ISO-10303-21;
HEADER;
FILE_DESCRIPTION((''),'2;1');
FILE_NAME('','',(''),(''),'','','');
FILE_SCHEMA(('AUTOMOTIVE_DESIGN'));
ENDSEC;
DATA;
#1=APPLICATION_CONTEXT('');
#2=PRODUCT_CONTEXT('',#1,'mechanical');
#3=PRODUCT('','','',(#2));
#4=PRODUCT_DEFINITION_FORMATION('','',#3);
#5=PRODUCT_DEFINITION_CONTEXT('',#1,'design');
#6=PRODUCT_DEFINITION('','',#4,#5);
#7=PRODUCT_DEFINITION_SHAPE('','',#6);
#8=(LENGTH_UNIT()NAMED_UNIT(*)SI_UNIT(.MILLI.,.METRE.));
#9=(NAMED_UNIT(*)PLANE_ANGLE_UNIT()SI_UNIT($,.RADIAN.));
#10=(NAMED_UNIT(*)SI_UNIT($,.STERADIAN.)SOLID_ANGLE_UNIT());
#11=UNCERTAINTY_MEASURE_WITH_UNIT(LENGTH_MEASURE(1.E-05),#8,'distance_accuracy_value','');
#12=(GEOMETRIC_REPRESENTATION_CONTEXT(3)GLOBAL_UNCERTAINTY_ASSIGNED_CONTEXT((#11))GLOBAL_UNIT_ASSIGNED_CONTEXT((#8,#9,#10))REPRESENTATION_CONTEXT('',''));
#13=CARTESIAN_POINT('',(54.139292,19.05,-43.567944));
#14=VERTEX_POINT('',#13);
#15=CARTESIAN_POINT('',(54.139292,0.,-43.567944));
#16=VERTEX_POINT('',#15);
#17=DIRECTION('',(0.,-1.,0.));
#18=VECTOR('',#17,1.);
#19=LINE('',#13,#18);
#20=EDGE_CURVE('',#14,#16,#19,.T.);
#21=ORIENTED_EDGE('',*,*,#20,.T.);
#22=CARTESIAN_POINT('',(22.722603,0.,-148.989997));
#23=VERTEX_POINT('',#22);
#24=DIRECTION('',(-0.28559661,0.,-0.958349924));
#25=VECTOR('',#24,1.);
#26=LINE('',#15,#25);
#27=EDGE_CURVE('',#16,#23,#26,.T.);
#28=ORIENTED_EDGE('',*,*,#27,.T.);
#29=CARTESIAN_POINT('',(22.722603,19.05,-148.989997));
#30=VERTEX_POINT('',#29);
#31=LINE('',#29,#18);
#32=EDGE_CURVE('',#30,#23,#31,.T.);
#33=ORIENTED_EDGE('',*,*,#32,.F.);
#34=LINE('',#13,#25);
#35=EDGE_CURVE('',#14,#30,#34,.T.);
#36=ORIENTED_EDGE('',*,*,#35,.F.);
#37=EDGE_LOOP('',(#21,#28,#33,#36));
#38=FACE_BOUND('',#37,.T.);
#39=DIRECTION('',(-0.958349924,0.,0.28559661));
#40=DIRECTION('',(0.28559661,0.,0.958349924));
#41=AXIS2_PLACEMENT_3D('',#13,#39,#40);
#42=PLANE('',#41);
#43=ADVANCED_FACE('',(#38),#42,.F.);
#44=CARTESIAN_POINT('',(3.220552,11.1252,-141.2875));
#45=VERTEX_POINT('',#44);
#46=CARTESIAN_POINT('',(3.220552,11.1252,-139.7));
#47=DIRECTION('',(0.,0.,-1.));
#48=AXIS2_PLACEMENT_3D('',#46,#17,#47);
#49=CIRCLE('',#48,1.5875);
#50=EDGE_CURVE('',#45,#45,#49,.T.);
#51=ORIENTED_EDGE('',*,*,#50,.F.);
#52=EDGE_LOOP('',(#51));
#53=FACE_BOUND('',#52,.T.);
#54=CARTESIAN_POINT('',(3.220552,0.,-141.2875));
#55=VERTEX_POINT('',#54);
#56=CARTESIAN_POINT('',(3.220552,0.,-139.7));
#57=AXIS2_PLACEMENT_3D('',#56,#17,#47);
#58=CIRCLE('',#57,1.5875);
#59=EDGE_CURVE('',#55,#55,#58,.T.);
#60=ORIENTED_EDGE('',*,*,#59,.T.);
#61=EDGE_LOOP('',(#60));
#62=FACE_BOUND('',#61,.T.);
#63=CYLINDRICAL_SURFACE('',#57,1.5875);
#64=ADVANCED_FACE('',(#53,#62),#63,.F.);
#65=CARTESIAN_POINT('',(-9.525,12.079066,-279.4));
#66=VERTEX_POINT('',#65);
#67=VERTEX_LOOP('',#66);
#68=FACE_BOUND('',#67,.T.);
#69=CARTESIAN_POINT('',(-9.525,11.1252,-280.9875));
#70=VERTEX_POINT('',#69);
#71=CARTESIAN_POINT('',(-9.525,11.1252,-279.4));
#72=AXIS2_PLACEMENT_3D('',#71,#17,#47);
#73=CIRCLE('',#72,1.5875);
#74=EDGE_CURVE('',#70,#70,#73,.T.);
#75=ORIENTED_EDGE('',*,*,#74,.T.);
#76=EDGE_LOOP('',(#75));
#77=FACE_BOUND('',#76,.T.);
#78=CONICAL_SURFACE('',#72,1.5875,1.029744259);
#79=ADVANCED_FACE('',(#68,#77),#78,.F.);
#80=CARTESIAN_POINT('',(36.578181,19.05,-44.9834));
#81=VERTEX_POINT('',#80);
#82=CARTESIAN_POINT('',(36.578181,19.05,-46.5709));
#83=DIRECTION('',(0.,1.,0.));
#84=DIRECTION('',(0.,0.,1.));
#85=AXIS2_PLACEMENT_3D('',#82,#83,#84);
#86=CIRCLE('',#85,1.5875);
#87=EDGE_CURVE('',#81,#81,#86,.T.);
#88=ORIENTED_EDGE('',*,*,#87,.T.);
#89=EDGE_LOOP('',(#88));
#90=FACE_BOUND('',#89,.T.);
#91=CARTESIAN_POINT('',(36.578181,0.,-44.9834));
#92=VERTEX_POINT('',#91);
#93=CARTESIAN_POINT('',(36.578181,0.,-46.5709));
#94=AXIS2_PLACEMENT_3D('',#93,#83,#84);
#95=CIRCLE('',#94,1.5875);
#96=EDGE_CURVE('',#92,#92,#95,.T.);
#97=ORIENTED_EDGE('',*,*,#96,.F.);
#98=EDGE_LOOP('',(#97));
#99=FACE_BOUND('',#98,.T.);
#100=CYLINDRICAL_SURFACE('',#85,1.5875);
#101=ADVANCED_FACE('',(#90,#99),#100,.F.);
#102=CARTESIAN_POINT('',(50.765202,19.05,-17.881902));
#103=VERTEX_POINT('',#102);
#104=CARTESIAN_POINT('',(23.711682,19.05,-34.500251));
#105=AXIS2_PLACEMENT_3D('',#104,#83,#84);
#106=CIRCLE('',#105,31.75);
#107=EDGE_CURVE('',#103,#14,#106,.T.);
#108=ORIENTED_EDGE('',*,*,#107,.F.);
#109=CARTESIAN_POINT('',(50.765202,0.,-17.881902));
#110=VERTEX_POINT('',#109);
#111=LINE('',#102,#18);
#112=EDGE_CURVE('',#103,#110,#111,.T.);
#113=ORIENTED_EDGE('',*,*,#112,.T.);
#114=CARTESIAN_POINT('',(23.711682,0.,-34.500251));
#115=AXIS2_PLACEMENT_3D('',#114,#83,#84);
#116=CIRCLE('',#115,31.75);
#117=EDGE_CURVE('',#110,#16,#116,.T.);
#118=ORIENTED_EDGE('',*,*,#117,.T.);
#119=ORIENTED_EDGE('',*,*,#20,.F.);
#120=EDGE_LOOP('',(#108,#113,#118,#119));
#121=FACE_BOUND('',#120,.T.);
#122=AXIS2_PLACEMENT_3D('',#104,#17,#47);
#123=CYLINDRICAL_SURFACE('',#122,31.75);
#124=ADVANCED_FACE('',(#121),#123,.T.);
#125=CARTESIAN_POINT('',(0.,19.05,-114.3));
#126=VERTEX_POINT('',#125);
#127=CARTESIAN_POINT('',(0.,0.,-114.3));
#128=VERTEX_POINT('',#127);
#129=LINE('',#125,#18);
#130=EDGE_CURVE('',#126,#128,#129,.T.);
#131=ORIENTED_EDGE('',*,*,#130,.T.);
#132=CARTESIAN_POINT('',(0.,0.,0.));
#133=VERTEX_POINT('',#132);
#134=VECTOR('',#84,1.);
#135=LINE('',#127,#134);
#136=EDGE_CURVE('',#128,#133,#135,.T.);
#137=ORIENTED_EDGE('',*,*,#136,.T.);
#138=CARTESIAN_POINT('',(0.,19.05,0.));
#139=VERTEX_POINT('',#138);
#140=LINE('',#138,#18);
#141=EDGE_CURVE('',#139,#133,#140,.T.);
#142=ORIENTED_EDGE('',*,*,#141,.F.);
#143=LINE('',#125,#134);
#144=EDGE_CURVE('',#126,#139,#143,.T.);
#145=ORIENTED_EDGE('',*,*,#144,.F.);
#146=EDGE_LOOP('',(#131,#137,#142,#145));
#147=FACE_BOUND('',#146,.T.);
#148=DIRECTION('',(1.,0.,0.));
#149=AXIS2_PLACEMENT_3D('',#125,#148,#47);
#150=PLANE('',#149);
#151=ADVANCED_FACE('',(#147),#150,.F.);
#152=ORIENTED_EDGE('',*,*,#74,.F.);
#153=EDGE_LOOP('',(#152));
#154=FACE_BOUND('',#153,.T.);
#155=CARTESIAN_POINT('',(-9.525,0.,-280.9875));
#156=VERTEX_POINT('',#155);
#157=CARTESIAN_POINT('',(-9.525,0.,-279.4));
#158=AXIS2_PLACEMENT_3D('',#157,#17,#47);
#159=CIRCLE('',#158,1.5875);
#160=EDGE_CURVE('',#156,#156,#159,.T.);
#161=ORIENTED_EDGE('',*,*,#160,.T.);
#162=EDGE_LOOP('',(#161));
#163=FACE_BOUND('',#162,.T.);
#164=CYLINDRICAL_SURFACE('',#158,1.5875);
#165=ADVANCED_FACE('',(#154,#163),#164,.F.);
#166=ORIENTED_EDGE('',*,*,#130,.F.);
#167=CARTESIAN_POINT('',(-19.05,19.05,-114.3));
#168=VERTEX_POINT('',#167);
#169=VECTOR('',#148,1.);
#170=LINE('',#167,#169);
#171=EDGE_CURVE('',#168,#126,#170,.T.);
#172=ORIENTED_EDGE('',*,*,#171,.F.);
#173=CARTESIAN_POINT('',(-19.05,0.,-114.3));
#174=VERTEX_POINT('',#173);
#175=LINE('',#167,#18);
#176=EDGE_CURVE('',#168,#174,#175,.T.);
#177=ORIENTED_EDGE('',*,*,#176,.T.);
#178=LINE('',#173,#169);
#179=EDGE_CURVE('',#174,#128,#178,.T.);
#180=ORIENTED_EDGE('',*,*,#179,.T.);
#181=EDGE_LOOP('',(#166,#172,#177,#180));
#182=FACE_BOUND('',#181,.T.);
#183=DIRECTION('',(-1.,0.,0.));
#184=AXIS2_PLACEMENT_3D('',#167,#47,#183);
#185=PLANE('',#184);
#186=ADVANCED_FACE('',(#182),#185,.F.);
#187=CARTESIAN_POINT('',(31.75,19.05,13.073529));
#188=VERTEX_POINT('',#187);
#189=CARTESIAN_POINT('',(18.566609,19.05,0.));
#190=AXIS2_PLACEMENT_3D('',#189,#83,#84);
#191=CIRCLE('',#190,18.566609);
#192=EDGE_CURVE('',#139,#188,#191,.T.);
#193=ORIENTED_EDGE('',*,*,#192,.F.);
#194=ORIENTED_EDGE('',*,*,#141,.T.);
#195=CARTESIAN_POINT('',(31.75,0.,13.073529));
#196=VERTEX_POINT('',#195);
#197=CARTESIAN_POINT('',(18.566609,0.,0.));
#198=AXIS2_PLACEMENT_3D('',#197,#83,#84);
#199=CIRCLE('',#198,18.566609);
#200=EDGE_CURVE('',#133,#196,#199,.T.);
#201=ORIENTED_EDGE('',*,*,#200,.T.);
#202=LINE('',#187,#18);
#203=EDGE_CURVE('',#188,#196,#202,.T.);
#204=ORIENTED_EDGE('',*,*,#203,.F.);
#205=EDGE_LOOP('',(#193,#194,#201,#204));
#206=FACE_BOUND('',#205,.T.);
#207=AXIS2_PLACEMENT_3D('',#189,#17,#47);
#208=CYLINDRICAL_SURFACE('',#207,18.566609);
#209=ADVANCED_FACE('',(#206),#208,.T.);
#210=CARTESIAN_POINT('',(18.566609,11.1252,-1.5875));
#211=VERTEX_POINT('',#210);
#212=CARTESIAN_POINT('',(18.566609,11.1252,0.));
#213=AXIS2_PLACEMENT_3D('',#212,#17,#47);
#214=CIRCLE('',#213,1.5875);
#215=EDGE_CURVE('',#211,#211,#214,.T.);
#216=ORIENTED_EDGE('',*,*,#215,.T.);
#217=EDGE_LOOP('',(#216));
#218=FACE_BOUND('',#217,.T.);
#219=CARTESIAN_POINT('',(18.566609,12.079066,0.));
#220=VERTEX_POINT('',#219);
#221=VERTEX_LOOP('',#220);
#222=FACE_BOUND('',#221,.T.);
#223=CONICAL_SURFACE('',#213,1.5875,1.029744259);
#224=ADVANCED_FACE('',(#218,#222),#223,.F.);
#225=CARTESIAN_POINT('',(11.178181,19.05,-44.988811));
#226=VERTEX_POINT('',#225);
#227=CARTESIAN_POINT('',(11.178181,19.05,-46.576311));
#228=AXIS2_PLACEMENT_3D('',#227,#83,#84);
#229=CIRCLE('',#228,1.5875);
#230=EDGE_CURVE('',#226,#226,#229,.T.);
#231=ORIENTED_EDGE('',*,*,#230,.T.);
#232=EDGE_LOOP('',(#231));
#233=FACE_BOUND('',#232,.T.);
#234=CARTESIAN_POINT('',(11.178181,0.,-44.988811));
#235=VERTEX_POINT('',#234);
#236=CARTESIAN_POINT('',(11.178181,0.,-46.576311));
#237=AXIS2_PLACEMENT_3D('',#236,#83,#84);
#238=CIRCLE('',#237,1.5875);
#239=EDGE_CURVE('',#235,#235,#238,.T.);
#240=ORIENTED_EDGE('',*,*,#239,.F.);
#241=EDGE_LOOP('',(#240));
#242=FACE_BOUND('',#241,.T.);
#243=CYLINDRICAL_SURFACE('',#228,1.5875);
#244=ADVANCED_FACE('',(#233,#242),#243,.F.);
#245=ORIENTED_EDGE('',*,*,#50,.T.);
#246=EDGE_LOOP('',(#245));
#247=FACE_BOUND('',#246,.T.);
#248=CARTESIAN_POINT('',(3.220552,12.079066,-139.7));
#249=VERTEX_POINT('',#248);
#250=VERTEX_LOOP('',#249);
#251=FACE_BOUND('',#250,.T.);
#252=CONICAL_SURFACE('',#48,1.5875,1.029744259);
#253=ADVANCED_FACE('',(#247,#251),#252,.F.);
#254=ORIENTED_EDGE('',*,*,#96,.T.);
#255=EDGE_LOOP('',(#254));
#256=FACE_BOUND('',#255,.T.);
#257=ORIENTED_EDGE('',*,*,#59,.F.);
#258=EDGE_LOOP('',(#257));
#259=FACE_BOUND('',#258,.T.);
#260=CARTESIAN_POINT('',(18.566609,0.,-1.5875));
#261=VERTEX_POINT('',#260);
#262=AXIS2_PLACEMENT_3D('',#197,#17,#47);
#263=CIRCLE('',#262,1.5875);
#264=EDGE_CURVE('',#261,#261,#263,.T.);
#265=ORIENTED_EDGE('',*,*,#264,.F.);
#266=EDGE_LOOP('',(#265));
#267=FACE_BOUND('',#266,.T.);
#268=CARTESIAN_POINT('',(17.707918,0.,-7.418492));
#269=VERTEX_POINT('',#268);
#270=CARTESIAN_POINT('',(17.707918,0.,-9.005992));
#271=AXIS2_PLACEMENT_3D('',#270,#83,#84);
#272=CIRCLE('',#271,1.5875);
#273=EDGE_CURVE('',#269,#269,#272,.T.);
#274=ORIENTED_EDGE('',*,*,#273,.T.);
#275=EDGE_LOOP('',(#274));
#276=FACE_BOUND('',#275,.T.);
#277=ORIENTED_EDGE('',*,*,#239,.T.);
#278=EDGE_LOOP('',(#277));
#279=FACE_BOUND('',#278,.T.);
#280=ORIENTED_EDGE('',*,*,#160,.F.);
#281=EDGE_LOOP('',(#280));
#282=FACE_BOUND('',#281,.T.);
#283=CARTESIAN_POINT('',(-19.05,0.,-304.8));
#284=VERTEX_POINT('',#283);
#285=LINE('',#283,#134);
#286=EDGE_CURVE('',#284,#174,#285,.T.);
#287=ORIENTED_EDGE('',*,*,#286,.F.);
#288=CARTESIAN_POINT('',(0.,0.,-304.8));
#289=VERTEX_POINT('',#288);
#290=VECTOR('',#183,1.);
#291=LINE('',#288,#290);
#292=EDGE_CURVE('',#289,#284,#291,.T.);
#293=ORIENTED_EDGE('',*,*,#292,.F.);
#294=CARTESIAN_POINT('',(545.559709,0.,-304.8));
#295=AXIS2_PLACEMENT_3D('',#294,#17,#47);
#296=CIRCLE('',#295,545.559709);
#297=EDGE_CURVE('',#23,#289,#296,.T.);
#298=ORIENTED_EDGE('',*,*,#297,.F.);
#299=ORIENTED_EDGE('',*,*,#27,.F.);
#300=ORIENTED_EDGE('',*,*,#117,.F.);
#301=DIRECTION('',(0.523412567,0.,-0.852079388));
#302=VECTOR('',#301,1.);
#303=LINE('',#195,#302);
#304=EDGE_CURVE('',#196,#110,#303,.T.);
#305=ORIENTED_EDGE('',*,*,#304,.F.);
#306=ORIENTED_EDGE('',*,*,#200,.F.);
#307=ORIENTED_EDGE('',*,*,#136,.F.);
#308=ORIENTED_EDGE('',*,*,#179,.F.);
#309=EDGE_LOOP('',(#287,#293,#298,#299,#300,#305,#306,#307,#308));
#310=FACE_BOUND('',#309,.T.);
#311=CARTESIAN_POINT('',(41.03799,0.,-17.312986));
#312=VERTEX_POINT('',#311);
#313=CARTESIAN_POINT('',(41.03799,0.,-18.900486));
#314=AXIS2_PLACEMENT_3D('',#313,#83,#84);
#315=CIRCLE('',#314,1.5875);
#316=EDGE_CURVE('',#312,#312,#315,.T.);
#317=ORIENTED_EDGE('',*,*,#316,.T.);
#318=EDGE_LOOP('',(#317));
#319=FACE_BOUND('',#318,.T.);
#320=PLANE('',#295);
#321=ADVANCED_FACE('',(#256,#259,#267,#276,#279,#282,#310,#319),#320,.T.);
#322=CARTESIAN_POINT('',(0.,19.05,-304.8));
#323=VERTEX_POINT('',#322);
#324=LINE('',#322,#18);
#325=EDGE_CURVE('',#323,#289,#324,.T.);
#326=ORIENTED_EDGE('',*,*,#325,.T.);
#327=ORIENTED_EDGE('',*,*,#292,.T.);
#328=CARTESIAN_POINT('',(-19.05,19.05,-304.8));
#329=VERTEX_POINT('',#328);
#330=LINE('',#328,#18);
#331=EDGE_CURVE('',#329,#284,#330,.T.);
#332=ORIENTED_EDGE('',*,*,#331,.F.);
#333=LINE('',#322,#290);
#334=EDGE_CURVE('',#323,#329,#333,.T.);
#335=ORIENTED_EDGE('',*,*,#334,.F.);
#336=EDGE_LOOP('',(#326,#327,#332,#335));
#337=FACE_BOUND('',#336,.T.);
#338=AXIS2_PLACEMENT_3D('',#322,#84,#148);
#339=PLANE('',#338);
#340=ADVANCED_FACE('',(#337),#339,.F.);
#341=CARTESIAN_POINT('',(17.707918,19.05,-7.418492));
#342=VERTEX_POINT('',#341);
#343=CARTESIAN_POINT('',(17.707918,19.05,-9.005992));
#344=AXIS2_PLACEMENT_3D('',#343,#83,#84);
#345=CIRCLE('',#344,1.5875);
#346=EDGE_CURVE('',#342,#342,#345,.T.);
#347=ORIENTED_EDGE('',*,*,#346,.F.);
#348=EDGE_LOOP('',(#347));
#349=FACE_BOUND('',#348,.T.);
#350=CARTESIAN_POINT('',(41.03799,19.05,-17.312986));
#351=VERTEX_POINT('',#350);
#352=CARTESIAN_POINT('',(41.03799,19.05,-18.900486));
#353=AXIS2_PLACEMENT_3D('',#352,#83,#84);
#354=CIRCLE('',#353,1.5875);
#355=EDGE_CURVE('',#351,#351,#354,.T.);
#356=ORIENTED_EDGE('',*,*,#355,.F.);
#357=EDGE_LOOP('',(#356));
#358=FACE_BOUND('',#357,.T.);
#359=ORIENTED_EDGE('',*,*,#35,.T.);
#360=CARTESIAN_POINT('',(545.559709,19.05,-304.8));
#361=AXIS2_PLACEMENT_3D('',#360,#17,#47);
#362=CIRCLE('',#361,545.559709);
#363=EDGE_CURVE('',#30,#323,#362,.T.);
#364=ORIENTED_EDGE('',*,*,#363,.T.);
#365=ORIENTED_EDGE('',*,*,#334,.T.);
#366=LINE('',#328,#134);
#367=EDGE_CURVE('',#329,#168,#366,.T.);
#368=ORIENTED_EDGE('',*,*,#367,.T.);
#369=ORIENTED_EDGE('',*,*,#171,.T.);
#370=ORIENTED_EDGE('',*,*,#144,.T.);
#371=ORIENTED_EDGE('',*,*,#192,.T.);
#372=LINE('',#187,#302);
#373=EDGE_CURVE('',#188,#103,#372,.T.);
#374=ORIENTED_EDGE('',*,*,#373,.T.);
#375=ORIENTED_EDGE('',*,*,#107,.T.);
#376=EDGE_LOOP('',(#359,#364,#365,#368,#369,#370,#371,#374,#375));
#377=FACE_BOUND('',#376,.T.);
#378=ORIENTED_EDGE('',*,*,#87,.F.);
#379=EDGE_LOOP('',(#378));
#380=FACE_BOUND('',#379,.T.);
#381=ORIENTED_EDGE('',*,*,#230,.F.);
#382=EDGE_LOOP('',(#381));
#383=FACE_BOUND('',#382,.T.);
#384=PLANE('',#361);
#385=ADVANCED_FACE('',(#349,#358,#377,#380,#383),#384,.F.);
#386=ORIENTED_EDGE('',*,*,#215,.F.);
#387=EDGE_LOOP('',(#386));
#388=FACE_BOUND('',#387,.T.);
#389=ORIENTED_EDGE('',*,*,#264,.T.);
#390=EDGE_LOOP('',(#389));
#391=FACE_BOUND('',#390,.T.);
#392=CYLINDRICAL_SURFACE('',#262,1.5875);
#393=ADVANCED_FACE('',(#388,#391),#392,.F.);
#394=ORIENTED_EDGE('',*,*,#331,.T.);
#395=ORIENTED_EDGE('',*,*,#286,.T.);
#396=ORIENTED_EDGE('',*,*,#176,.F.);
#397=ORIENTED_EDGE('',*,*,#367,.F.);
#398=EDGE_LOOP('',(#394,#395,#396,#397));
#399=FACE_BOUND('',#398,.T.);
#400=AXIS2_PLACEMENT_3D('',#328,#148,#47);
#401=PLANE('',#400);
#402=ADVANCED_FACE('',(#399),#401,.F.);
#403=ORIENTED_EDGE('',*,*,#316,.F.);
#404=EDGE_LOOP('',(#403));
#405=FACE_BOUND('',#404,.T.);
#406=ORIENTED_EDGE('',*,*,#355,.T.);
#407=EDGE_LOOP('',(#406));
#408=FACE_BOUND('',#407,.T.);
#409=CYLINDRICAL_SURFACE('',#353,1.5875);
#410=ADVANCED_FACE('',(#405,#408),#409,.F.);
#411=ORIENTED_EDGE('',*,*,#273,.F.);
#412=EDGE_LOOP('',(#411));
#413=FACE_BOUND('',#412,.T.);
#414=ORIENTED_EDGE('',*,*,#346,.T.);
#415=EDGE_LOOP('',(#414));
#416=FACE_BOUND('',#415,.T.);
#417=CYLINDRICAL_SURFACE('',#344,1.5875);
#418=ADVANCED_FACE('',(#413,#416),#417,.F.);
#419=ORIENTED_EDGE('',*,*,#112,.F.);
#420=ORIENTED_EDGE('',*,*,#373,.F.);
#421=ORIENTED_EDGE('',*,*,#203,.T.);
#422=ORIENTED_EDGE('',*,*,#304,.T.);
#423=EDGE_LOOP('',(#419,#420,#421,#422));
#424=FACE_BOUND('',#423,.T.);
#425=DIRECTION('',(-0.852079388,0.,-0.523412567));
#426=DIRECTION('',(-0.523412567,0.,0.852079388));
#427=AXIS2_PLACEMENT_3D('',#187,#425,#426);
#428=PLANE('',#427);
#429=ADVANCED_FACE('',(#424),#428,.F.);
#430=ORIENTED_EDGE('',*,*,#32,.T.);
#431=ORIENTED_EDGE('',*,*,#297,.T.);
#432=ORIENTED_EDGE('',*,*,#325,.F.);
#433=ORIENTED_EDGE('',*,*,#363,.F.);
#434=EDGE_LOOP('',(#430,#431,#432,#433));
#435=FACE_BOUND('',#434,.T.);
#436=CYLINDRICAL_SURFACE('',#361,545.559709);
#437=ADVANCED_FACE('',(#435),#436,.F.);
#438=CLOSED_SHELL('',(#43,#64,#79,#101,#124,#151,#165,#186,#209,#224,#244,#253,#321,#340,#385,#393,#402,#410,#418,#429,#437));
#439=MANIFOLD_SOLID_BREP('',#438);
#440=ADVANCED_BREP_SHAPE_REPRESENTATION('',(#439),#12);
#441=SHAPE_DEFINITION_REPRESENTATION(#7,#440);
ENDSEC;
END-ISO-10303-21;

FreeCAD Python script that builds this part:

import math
import FreeCAD as App
import Part
import Sketcher
from FreeCAD import Vector
Q = App.Units.Quantity

doc = App.newDocument("Part")
body = doc.addObject("PartDesign::Body", "Body")

# Sketch on XZ plane
sketch1 = body.newObject("Sketcher::SketchObject", "Sketch")
sketch1.AttachmentSupport = (doc.getObject("XZ_Plane"), [""])
sketch1.MapMode = "FlatFace"
sketch1.addGeometry([
    Part.LineSegment(Vector(32, 13, 0), Vector(51, -18, 0)),  # 0
    Part.ArcOfCircle(Part.Circle(Vector(24, -35, 0), Vector(0, 0, 1), 32), math.radians(-17), math.radians(32)),  # 1
    Part.LineSegment(Vector(54, -44, 0), Vector(23, -149, 0)),  # 2
    Part.ArcOfCircle(Part.Circle(Vector(546, -305, 0), Vector(0, 0, 1), 546), math.radians(163.41), math.radians(180)),  # 3
    Part.LineSegment(Vector(0, -305, 0), Vector(-19, -305, 0)),  # 4
    Part.LineSegment(Vector(-19, -305, 0), Vector(-19, -114, 0)),  # 5
    Part.LineSegment(Vector(-19, -114, 0), Vector(0, -114, 0)),  # 6
    Part.LineSegment(Vector(0, -114, 0), Vector(0, 0, 0)),  # 7
    Part.ArcOfCircle(Part.Circle(Vector(19, 0, 0), Vector(0, 0, 1), 19), math.radians(45), math.radians(180)),  # 8
], False)
sketch1.addConstraint([
    Sketcher.Constraint("Tangent", 0, 2, 1, 2),
    Sketcher.Constraint("Tangent", 1, 1, 2, 1),
    Sketcher.Constraint("Tangent", 2, 2, 3, 1),
    Sketcher.Constraint("Coincident", 3, 2, 4, 1),
    Sketcher.Constraint("Coincident", 4, 2, 5, 1),
    Sketcher.Constraint("Coincident", 5, 2, 6, 1),
    Sketcher.Constraint("Coincident", 6, 2, 7, 1),
    Sketcher.Constraint("Tangent", 7, 2, 8, 2),
    Sketcher.Constraint("Coincident", 8, 1, 0, 1),
    Sketcher.Constraint("Horizontal", 4),
    Sketcher.Constraint("Vertical", 5),
    Sketcher.Constraint("Horizontal", 6),
    Sketcher.Constraint("Vertical", 7),
    Sketcher.Constraint("Coincident", 7, 2, -1, 1),
    Sketcher.Constraint("PointOnObject", 3, 2, -2),
    Sketcher.Constraint("Radius", 1, Q("1.25 in")),
    Sketcher.Constraint("DistanceY", 5, 1, 5, 2, Q("7.5 in")),
    Sketcher.Constraint("DistanceY", 7, 1, 7, 2, Q("4.5 in")),
    Sketcher.Constraint("DistanceY", 3, 3, -1, 1, Q("12 in")),
    Sketcher.Constraint("DistanceX", 4, 2, 4, 1, Q("0.75 in")),
    Sketcher.Constraint("DistanceX", -1, 1, 8, 1, Q("1.25 in")),
    Sketcher.Constraint("Radius", 3, Q("545.559709 mm")),
    Sketcher.Constraint("Radius", 8, Q("18.566609 mm")),
    Sketcher.Constraint("DistanceX", 2, 2, 0, 2, Q("28.042599 mm")),
    Sketcher.Constraint("Distance", 0, Q("36.329281 mm")),
])
pad1 = body.newObject("PartDesign::Pad", "Pad")
pad1.Profile = sketch1
pad1.Length = Q("0.75 in")
pad1.Reversed = True

# Sketch on XZ plane
sketch2 = body.newObject("Sketcher::SketchObject", "Sketch001")
sketch2.AttachmentSupport = (doc.getObject("XZ_Plane"), [""])
sketch2.MapMode = "FlatFace"
sketch2.addGeometry([
    Part.Circle(Vector(3.2, -139.7, 0), Vector(0, 0, 1), 1.6),
    Part.Circle(Vector(18.6, 0, 0), Vector(0, 0, 1), 1.6),
    Part.Circle(Vector(-9.5, -279.4, 0), Vector(0, 0, 1), 1.6),
], False)
sketch2.addConstraint([
    Sketcher.Constraint("Equal", 0, 1),
    Sketcher.Constraint("Equal", 1, 2),
    Sketcher.Constraint("PointOnObject", 1, 3, -1),
    Sketcher.Constraint("Diameter", 0, Q("0.125 in")),
    Sketcher.Constraint("DistanceY", 2, 3, -1, 1, Q("11 in")),
    Sketcher.Constraint("DistanceY", 0, 3, -1, 1, Q("5.5 in")),
    Sketcher.Constraint("DistanceX", 2, 3, -1, 1, Q("0.375 in")),
    Sketcher.Constraint("DistanceX", -1, 1, 0, 3, Q("3.220552 mm")),
    Sketcher.Constraint("DistanceX", -1, 1, 1, 3, Q("18.566609 mm")),
])
doc.recompute()
hole = body.newObject("PartDesign::Hole", "Hole")
hole.Profile = sketch2
hole.ThreadType = "None"
hole.Diameter = Q("0.125 in")
hole.DepthType = "Dimension"
hole.Depth = Q("0.438 in")
hole.DrillPoint = "Angled"
hole.DrillPointAngle = 118

# Sketch on XZ plane
sketch3 = body.newObject("Sketcher::SketchObject", "Sketch002")
sketch3.AttachmentSupport = (doc.getObject("XZ_Plane"), [""])
sketch3.MapMode = "FlatFace"
sketch3.AttachmentOffset = App.Placement(Vector(0, 0, -0.75 * 25.4), App.Rotation())
sketch3.addGeometry([
    Part.Circle(Vector(36.6, -46.6, 0), Vector(0, 0, 1), 1.6),
    Part.Circle(Vector(11.2, -46.6, 0), Vector(0, 0, 1), 1.6),
    Part.Circle(Vector(17.7, -9, 0), Vector(0, 0, 1), 1.6),
    Part.Circle(Vector(41, -18.9, 0), Vector(0, 0, 1), 1.6),
], False)
sketch3.addConstraint([
    Sketcher.Constraint("Equal", 0, 1),
    Sketcher.Constraint("Equal", 1, 2),
    Sketcher.Constraint("Equal", 2, 3),
    Sketcher.Constraint("Diameter", 0, Q("0.125 in")),
    Sketcher.Constraint("DistanceX", 1, 3, 0, 3, Q("1 in")),
    Sketcher.Constraint("DistanceY", 0, 3, -1, 1, Q("1.8335 in")),
    Sketcher.Constraint("DistanceX", -1, 1, 0, 3, Q("36.578181 mm")),
    Sketcher.Constraint("DistanceY", 1, 3, -1, 1, Q("46.576311 mm")),
    Sketcher.Constraint("DistanceX", -1, 1, 3, 3, Q("41.03799 mm")),
    Sketcher.Constraint("DistanceY", 1, 3, 2, 3, Q("37.570319 mm")),
    Sketcher.Constraint("DistanceX", -1, 1, 2, 3, Q("17.707918 mm")),
    Sketcher.Constraint("DistanceY", 3, 3, -1, 1, Q("18.900486 mm")),
])
doc.recompute()
hole2 = body.newObject("PartDesign::Hole", "Hole001")
hole2.Profile = sketch3
hole2.ThreadType = "None"
hole2.Diameter = Q("0.125 in")
hole2.DepthType = "ThroughAll"
hole2.Reversed = True

doc.recompute()
